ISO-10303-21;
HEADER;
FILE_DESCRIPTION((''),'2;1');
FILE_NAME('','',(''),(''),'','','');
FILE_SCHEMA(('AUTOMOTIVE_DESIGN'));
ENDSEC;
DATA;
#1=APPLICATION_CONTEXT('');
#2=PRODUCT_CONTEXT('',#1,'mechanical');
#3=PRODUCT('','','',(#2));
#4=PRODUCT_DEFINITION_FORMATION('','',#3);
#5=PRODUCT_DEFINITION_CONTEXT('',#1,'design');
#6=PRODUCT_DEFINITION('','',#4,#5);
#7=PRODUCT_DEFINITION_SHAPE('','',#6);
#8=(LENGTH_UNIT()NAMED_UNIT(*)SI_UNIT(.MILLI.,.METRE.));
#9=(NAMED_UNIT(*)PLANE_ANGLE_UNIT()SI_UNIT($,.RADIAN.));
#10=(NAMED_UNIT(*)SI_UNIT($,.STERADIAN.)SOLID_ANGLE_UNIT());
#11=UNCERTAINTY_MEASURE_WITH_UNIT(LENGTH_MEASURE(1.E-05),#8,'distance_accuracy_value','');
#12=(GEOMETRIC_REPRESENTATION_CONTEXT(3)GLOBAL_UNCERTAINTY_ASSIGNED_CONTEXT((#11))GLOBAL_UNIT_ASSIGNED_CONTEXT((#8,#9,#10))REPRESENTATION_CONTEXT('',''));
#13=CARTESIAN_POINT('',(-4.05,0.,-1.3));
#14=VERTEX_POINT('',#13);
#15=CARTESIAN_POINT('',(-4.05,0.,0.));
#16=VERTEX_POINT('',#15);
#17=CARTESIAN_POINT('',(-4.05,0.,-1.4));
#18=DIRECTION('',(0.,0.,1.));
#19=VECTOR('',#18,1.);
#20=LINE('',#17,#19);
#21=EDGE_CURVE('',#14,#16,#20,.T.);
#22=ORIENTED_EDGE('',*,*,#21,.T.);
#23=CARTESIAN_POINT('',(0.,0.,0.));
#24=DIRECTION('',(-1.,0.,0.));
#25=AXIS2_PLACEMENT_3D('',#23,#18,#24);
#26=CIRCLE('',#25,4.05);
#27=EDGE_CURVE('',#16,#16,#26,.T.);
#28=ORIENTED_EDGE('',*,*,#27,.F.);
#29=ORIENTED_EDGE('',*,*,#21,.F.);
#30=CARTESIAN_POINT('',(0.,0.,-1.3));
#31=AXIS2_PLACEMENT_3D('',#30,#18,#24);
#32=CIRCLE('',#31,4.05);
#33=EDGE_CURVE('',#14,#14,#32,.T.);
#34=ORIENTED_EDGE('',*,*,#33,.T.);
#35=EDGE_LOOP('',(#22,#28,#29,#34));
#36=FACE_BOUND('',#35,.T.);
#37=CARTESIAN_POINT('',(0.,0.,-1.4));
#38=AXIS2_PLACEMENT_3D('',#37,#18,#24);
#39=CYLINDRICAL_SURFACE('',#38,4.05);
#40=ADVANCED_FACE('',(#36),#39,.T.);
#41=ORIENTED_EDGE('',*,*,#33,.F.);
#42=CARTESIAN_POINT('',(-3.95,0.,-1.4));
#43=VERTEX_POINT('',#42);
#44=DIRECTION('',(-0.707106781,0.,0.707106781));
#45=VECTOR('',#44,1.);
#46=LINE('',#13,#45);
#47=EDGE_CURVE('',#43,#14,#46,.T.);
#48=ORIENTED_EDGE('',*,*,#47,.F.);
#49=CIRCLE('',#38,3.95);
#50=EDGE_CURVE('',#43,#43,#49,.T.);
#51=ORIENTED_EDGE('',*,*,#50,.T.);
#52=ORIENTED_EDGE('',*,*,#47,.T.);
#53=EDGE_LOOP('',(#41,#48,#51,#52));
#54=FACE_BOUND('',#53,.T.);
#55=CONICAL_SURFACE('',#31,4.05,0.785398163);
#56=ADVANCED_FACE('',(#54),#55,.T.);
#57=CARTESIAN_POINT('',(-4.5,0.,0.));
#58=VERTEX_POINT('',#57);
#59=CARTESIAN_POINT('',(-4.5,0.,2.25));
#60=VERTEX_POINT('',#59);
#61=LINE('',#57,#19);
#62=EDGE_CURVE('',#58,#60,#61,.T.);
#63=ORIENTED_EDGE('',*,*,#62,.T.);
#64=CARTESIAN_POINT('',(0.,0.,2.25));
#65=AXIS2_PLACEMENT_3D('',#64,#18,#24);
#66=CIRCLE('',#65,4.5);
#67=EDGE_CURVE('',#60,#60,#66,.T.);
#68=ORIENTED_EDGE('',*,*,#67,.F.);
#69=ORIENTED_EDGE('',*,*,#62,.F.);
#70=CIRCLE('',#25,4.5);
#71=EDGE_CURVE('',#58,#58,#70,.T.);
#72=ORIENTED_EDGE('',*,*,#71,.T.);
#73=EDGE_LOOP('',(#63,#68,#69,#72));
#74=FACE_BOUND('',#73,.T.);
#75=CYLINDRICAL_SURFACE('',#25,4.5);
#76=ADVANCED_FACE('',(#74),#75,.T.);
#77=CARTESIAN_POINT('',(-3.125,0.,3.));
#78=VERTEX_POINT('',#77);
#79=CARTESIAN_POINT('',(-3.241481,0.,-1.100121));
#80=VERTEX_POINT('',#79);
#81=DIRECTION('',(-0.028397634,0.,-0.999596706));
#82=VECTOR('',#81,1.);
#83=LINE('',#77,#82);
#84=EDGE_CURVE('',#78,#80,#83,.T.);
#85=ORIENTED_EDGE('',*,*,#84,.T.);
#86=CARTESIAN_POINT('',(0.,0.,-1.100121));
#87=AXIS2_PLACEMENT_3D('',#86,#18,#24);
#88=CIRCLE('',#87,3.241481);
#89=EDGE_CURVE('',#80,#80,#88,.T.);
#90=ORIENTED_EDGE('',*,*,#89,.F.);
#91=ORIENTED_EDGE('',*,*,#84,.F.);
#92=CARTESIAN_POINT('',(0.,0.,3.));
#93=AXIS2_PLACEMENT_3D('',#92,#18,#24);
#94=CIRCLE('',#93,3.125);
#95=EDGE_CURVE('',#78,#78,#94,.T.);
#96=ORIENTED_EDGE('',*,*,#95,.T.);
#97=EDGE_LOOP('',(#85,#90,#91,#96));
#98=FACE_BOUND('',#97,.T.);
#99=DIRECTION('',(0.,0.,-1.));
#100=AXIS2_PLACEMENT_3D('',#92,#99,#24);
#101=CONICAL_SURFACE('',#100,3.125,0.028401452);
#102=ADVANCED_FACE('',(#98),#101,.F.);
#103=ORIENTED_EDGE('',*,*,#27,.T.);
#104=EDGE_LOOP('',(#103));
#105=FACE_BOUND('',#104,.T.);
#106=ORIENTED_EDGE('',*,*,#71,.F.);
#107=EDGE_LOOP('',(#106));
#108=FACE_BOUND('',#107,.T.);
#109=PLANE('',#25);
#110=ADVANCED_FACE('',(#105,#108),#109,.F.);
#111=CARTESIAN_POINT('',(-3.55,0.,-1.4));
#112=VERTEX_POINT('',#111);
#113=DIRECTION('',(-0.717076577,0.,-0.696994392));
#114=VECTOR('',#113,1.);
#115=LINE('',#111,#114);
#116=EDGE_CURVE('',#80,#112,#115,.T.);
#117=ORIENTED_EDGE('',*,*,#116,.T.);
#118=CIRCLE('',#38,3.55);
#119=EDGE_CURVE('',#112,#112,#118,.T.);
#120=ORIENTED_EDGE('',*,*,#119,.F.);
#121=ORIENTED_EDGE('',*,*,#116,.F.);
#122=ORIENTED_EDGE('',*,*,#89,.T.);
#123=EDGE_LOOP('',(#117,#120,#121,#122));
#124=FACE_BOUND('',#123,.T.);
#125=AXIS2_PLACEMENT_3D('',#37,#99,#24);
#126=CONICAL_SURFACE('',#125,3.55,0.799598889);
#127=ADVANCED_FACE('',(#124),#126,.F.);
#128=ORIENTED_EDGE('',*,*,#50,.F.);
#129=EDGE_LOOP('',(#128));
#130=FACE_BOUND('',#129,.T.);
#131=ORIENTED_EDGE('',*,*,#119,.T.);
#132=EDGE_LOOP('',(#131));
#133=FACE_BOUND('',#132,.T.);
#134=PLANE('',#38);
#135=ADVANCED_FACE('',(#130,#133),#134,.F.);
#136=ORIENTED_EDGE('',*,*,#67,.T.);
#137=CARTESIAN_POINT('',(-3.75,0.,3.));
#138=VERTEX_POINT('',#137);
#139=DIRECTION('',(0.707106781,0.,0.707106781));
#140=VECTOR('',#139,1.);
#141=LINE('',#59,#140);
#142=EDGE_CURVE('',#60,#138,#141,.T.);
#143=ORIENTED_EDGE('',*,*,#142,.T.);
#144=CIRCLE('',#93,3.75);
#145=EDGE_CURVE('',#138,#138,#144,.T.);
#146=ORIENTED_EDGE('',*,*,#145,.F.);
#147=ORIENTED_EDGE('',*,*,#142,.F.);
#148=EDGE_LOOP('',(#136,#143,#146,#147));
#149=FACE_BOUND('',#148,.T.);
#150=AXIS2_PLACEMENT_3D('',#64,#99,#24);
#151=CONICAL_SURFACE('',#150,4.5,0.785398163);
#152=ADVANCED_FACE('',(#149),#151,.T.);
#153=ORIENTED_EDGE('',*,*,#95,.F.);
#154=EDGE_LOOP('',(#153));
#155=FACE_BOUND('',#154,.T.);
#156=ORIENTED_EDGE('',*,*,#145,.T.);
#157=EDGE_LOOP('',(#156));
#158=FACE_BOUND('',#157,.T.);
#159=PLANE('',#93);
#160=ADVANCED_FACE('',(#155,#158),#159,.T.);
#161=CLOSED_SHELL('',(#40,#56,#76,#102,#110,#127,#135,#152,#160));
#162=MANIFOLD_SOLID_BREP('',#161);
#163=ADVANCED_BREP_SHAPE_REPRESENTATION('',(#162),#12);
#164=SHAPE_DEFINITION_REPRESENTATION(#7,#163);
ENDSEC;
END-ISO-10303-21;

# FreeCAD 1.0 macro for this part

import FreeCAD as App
import Part
import Sketcher
from FreeCAD import Vector
Q = App.Units.Quantity


def edges_at(feature, points):
    """Names of the edges that pass closest to the given points."""
    edges = feature.Shape.Edges
    near = lambda p: min(range(len(edges)), key=lambda i: edges[i].distToShape(Part.Vertex(*p))[0])
    return sorted({f"Edge{near(p) + 1}" for p in points})


def add_polygon(sketch, points):
    """Adds a closed chain of lines whose ends are joined by coincident constraints."""
    first, n = sketch.GeometryCount, len(points)
    for a, b in zip(points, points[1:] + points[:1]):
        sketch.addGeometry(Part.LineSegment(App.Vector(*a, 0), App.Vector(*b, 0)), False)
    for i in range(n):
        sketch.addConstraint(Sketcher.Constraint("Coincident", first + i, 2, first + (i + 1) % n, 1))

doc = App.newDocument("Part")
body = doc.addObject("PartDesign::Body", "Body")

# Sketch on XZ plane
sketch1 = body.newObject("Sketcher::SketchObject", "Sketch")
sketch1.AttachmentSupport = (doc.getObject("XZ_Plane"), [""])
sketch1.MapMode = "FlatFace"
add_polygon(sketch1, [(-4.5, 3), (-4.5, 0), (-4.05, 0), (-4.05, -1.4), (-3.25, -1.4), (-3.12, 3)])  # lines 0-5
sketch1.addConstraint([
    Sketcher.Constraint("Vertical", 0),
    Sketcher.Constraint("Horizontal", 1),
    Sketcher.Constraint("Vertical", 2),
    Sketcher.Constraint("Horizontal", 3),
    Sketcher.Constraint("Horizontal", 5),
    Sketcher.Constraint("PointOnObject", 0, 2, -1),
    Sketcher.Constraint("DistanceY", 0, 2, 0, 1, Q("3 mm")),
    Sketcher.Constraint("DistanceX", 3, 1, 3, 2, Q("0.8 mm")),
    Sketcher.Constraint("DistanceY", 2, 2, 2, 1, Q("1.4 mm")),
    Sketcher.Constraint("DistanceX", 1, 1, 1, 2, Q("0.45 mm")),
    Sketcher.Constraint("DistanceX", 0, 2, -1, 1, Q("4.5 mm")),
    Sketcher.Constraint("DistanceX", 5, 2, 5, 1, Q("1.375 mm")),
])
revolution = body.newObject("PartDesign::Revolution", "Revolution")
revolution.Profile = sketch1
revolution.ReferenceAxis = (sketch1, ["V_Axis"])
revolution.Angle = 360
doc.recompute()

chamfer = body.newObject("PartDesign::Chamfer", "Chamfer")
chamfer.Base = (revolution, edges_at(revolution, [(4.5, 0, 3)]))
chamfer.Size = 0.75
doc.recompute()

chamfer2 = body.newObject("PartDesign::Chamfer", "Chamfer001")
chamfer2.Base = (chamfer, edges_at(chamfer, [(3.25, 0, -1.4)]))
chamfer2.Size = 0.3
doc.recompute()

chamfer3 = body.newObject("PartDesign::Chamfer", "Chamfer002")
chamfer3.Base = (chamfer2, edges_at(chamfer2, [(4.05, 0, -1.4)]))
chamfer3.Size = 0.1

doc.recompute()
